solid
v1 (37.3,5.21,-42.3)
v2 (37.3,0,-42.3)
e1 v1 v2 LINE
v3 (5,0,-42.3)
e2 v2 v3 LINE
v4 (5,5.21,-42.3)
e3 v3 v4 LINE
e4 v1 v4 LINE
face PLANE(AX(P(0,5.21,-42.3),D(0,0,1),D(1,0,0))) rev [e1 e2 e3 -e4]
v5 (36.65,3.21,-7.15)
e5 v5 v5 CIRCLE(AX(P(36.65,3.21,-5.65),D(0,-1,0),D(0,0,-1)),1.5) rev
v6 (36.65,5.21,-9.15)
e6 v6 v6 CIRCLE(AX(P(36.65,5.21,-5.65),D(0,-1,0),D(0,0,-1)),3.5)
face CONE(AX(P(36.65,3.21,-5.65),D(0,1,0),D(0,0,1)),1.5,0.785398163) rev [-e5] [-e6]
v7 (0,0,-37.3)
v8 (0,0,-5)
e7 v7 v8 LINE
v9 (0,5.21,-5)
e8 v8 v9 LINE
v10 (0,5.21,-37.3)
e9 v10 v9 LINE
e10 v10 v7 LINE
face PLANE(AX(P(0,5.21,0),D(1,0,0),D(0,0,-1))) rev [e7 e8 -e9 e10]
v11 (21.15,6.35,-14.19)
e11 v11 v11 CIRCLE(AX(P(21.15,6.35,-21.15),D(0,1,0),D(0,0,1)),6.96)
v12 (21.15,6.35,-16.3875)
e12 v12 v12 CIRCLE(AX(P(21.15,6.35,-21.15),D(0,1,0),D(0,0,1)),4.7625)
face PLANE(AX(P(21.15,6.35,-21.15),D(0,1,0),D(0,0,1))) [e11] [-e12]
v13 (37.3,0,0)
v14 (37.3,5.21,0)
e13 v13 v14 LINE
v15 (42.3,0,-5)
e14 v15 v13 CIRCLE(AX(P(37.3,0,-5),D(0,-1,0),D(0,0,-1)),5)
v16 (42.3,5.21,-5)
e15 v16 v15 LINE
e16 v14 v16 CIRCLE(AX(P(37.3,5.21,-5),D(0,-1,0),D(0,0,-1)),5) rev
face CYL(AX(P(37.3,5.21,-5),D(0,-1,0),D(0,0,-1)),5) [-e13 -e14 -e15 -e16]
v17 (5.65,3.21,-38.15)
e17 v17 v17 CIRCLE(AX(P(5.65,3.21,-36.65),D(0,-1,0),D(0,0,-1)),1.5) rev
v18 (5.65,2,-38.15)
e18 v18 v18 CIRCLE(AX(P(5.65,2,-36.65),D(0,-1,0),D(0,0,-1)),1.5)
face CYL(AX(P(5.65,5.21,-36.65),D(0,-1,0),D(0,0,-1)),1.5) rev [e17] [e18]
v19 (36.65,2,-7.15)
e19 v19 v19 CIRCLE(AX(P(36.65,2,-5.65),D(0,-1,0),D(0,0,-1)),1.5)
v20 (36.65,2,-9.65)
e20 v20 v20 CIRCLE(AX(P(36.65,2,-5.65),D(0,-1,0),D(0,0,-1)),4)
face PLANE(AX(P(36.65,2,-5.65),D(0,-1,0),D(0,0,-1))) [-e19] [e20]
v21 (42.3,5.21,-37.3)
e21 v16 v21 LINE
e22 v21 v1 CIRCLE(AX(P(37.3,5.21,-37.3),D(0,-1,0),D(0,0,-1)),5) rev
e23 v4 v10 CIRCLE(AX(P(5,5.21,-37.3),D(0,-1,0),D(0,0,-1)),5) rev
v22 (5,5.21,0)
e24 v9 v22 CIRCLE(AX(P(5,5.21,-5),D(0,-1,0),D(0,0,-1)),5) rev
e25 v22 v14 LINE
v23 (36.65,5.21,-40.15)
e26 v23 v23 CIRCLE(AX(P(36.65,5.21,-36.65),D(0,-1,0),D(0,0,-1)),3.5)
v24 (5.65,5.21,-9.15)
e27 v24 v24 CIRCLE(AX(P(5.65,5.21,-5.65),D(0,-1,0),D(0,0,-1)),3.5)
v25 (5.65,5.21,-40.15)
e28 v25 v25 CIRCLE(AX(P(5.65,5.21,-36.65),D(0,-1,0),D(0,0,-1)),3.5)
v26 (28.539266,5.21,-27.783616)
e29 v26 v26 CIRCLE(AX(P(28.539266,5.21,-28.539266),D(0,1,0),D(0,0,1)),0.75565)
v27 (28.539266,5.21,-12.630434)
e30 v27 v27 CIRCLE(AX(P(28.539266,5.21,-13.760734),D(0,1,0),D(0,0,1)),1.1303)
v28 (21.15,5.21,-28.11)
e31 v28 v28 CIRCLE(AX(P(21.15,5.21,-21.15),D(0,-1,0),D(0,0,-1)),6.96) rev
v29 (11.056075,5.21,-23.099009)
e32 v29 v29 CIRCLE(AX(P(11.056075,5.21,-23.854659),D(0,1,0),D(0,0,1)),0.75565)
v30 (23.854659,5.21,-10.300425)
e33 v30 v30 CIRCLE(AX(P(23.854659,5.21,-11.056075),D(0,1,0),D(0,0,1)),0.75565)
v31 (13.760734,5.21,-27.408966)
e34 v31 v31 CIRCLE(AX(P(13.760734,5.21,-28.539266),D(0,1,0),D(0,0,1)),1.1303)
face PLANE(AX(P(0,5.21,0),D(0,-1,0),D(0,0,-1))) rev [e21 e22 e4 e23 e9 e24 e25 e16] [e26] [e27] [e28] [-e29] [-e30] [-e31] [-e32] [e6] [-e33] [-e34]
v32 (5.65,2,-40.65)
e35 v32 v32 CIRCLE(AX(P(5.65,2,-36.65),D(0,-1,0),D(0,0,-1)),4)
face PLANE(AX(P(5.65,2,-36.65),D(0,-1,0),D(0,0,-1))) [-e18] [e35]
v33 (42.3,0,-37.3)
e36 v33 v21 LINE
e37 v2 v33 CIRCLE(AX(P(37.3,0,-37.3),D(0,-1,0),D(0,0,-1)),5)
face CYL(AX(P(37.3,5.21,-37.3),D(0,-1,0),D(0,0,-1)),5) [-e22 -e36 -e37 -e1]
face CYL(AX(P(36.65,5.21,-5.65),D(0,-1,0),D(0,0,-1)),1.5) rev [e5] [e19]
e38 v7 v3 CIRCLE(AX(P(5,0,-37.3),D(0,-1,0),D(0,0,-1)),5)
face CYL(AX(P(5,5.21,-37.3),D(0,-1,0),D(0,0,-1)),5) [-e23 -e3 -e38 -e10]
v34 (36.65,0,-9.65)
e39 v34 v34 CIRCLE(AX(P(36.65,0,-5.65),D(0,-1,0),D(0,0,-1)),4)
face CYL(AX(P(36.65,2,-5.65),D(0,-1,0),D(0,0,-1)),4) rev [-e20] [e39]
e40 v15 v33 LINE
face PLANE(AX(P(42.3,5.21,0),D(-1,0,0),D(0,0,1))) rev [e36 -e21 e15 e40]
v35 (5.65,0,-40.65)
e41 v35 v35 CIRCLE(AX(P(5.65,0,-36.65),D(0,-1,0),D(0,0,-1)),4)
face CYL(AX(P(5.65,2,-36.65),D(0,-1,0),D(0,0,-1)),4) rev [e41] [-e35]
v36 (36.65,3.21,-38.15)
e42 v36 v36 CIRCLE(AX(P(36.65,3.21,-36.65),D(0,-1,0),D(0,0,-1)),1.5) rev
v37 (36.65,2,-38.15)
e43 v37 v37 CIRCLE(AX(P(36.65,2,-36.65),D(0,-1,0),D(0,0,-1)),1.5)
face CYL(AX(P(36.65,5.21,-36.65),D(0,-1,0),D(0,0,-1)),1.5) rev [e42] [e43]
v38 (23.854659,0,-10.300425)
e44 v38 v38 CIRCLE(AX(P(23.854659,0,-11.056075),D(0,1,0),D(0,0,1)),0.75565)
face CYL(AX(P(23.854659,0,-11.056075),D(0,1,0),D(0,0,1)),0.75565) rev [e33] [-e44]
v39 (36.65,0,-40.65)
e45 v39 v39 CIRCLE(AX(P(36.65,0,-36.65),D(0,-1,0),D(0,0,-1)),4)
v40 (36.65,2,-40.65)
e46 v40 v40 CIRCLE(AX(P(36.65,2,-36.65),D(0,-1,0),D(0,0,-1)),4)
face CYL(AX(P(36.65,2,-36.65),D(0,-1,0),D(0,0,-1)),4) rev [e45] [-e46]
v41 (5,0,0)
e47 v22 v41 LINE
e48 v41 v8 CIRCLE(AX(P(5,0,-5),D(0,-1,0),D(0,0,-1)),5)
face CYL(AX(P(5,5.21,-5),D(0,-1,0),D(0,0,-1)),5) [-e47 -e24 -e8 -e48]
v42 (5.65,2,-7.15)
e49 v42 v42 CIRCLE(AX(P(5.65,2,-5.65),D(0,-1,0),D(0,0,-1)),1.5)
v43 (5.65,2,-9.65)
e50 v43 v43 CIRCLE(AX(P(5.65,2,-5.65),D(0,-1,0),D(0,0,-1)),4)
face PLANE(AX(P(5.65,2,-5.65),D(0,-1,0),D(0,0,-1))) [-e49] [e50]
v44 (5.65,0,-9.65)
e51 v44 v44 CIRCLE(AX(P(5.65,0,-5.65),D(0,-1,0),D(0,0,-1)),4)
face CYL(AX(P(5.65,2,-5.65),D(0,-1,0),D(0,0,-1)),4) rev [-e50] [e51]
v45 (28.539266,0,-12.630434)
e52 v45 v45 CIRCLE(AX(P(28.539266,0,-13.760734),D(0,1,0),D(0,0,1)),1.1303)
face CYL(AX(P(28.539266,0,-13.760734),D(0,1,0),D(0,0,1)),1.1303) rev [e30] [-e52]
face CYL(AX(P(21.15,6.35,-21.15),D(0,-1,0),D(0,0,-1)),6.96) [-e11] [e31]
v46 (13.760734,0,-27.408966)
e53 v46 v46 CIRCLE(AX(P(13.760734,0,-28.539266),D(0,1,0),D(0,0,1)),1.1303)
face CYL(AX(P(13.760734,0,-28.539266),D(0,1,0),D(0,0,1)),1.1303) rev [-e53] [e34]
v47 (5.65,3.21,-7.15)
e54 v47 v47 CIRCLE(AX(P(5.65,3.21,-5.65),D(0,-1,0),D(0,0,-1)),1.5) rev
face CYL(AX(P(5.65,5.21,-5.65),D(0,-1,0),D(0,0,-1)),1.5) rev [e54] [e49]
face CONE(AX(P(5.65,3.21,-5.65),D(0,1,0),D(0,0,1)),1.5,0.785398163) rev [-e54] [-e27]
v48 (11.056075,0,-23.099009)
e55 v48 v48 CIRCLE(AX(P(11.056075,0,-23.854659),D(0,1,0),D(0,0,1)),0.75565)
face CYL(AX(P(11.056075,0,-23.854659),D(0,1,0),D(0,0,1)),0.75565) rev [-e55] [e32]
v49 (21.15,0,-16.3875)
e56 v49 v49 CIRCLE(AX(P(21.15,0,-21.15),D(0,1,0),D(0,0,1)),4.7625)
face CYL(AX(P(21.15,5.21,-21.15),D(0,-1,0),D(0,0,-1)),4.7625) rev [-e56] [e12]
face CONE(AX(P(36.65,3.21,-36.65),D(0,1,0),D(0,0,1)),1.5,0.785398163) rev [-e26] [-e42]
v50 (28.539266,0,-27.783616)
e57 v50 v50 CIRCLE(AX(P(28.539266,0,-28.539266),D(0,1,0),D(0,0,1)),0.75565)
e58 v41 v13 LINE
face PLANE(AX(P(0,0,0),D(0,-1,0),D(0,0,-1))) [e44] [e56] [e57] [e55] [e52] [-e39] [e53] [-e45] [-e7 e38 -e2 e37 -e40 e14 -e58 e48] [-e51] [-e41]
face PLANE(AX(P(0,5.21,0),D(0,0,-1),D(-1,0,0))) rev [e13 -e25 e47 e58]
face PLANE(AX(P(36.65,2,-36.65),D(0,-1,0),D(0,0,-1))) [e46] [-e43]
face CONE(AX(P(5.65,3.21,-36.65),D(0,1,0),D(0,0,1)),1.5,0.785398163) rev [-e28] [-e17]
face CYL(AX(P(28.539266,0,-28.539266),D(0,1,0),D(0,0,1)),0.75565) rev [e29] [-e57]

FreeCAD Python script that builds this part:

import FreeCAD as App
import Part
import Sketcher


def edges_at(feature, points):
    """Names of the edges that pass closest to the given points."""
    edges = feature.Shape.Edges
    near = lambda p: min(range(len(edges)), key=lambda i: edges[i].distToShape(Part.Vertex(*p))[0])
    return sorted({f"Edge{near(p) + 1}" for p in points})


def add_polygon(sketch, points):
    """Adds a closed chain of lines whose ends are joined by coincident constraints."""
    first, n = sketch.GeometryCount, len(points)
    for a, b in zip(points, points[1:] + points[:1]):
        sketch.addGeometry(Part.LineSegment(App.Vector(*a, 0), App.Vector(*b, 0)), False)
    for i in range(n):
        sketch.addConstraint(Sketcher.Constraint("Coincident", first + i, 2, first + (i + 1) % n, 1))

doc = App.newDocument("Part")
body = doc.addObject("PartDesign::Body", "Body")

sketch1 = body.newObject("Sketcher::SketchObject", "Sketch")
sketch1.AttachmentSupport = (doc.getObject("XZ_Plane"), [""])
sketch1.MapMode = "FlatFace"
add_polygon(sketch1, [(0, -42.3), (0, 0), (42.3, 0), (42.3, -42.3)])
sketch1.addGeometry(Part.Circle(App.Vector(5.65, -5.65, 0), App.Vector(0, 0, 1), 1.5), False)
sketch1.addGeometry(Part.Circle(App.Vector(36.65, -5.65, 0), App.Vector(0, 0, 1), 1.5), False)
sketch1.addGeometry(Part.Circle(App.Vector(5.65, -36.65, 0), App.Vector(0, 0, 1), 1.5), False)
sketch1.addGeometry(Part.Circle(App.Vector(21.15, -21.15, 0), App.Vector(0, 0, 1), 4.7625), False)
sketch1.addGeometry(Part.Circle(App.Vector(36.65, -36.65, 0), App.Vector(0, 0, 1), 1.5), False)
sketch1.addConstraint([
    Sketcher.Constraint("Vertical", 0),
    Sketcher.Constraint("Horizontal", 1),
    Sketcher.Constraint("Vertical", 2),
    Sketcher.Constraint("Horizontal", 3),
    Sketcher.Constraint("Coincident", 0, 2, -1, 1),
    Sketcher.Constraint("Equal", 4, 5),
    Sketcher.Constraint("Equal", 5, 6),
    Sketcher.Constraint("Equal", 6, 8),
    Sketcher.Constraint("Horizontal", 4, 3, 5, 3),
    Sketcher.Constraint("Horizontal", 6, 3, 8, 3),
    Sketcher.Constraint("Vertical", 4, 3, 6, 3),
    Sketcher.Constraint("Vertical", 5, 3, 8, 3),
    Sketcher.Constraint("Equal", 3, 0),
    Sketcher.Constraint("Diameter", 4, 3.0),
    Sketcher.Constraint("Diameter", 7, 9.525),
    Sketcher.Constraint("DistanceX", 1, 1, 1, 2, 42.3),
    Sketcher.Constraint("DistanceX", 4, 3, 5, 3, 31.0),
    Sketcher.Constraint("DistanceY", 6, 3, 4, 3, 31.0),
    Sketcher.Constraint("DistanceX", 4, 3, 7, 3, 15.5),
    Sketcher.Constraint("DistanceY", 7, 3, 4, 3, 15.5),
    Sketcher.Constraint("DistanceX", -1, 1, 4, 3, 5.65),
    Sketcher.Constraint("DistanceY", 4, 3, -1, 1, 5.65),
])
pad1 = body.newObject("PartDesign::Pad", "Pad")
pad1.Profile = sketch1
pad1.Length = 5.21
pad1.Reversed = True

sketch2 = body.newObject("Sketcher::SketchObject", "Sketch001")
sketch2.AttachmentSupport = (doc.getObject("XZ_Plane"), [""])
sketch2.MapMode = "FlatFace"
sketch2.AttachmentOffset = App.Placement(App.Vector(0, 0, -5.21), App.Rotation())
sketch2.addGeometry([
    Part.Circle(App.Vector(11.056075, -23.854659, 0), App.Vector(0, 0, 1), 0.75565),
    Part.Circle(App.Vector(28.539266, -28.539266, 0), App.Vector(0, 0, 1), 0.75565),
    Part.Circle(App.Vector(23.854659, -11.056075, 0), App.Vector(0, 0, 1), 0.75565),
    Part.Circle(App.Vector(28.539266, -13.760734, 0), App.Vector(0, 0, 1), 1.1303),
    Part.Circle(App.Vector(13.760734, -28.539266, 0), App.Vector(0, 0, 1), 1.1303),
], False)
sketch2.addConstraint([
    Sketcher.Constraint("Equal", 0, 1),
    Sketcher.Constraint("Equal", 1, 2),
    Sketcher.Constraint("Equal", 3, 4),
    Sketcher.Constraint("Horizontal", 1, 3, 4, 3),
    Sketcher.Constraint("Vertical", 1, 3, 3, 3),
    Sketcher.Constraint("Diameter", 0, 1.5113),
    Sketcher.Constraint("Diameter", 3, 2.2606),
    Sketcher.Constraint("DistanceY", 0, 3, -1, 1, 23.854659),
    Sketcher.Constraint("DistanceX", -1, 1, 2, 3, 23.854659),
    Sketcher.Constraint("DistanceX", 0, 3, 1, 3, 17.483191),
    Sketcher.Constraint("DistanceY", 1, 3, 2, 3, 17.483191),
    Sketcher.Constraint("DistanceY", 3, 3, 2, 3, 2.704659),
    Sketcher.Constraint("DistanceX", 0, 3, 4, 3, 2.704659),
    Sketcher.Constraint("DistanceX", -1, 1, 0, 3, 11.056075),
    Sketcher.Constraint("DistanceY", 1, 3, -1, 1, 28.539266),
])
pocket1 = body.newObject("PartDesign::Pocket", "Pocket")
pocket1.Profile = sketch2
pocket1.Type = "ThroughAll"
pocket1.Reversed = True
doc.recompute()

chamfer = body.newObject("PartDesign::Chamfer", "Chamfer")
chamfer.Base = (pocket1, edges_at(pocket1, [
    (35.15, 5.21, -36.65),
    (4.15, 5.21, -5.65),
    (35.15, 5.21, -5.65),
    (4.15, 5.21, -36.65),
]))
chamfer.Size = 2

sketch3 = body.newObject("Sketcher::SketchObject", "Sketch002")
sketch3.AttachmentSupport = (doc.getObject("XZ_Plane"), [""])
sketch3.MapMode = "FlatFace"
sketch3.AttachmentOffset = App.Placement(App.Vector(0, 0, -5.21), App.Rotation())
sketch3.addGeometry([
    Part.Circle(App.Vector(21.15, -21.15, 0), App.Vector(0, 0, 1), 6.96),
    Part.Circle(App.Vector(21.15, -21.15, 0), App.Vector(0, 0, 1), 4.7625),
], False)
sketch3.addConstraint([
    Sketcher.Constraint("Coincident", 1, 3, 0, 3),
    Sketcher.Constraint("Diameter", 0, 13.92),
    Sketcher.Constraint("Diameter", 1, 9.525),
    Sketcher.Constraint("DistanceX", -1, 1, 0, 3, 21.15),
    Sketcher.Constraint("DistanceY", 0, 3, -1, 1, 21.15),
])
pad2 = body.newObject("PartDesign::Pad", "Pad001")
pad2.Profile = sketch3
pad2.Length = 1.14
pad2.Reversed = True

sketch4 = body.newObject("Sketcher::SketchObject", "Sketch003")
sketch4.AttachmentSupport = (doc.getObject("XZ_Plane"), [""])
sketch4.MapMode = "FlatFace"
sketch4.addGeometry([
    Part.Circle(App.Vector(36.65, -36.65, 0), App.Vector(0, 0, 1), 4),
    Part.Circle(App.Vector(36.65, -36.65, 0), App.Vector(0, 0, 1), 1.5),
    Part.Circle(App.Vector(5.65, -36.65, 0), App.Vector(0, 0, 1), 4),
    Part.Circle(App.Vector(5.65, -36.65, 0), App.Vector(0, 0, 1), 1.5),
    Part.Circle(App.Vector(5.65, -5.65, 0), App.Vector(0, 0, 1), 4),
    Part.Circle(App.Vector(5.65, -5.65, 0), App.Vector(0, 0, 1), 1.5),
    Part.Circle(App.Vector(36.65, -5.65, 0), App.Vector(0, 0, 1), 4),
    Part.Circle(App.Vector(36.65, -5.65, 0), App.Vector(0, 0, 1), 1.5),
], False)
sketch4.addConstraint([
    Sketcher.Constraint("Coincident", 1, 3, 0, 3),
    Sketcher.Constraint("Coincident", 3, 3, 2, 3),
    Sketcher.Constraint("Coincident", 5, 3, 4, 3),
    Sketcher.Constraint("Coincident", 7, 3, 6, 3),
    Sketcher.Constraint("Equal", 0, 2),
    Sketcher.Constraint("Equal", 1, 3),
    Sketcher.Constraint("Equal", 2, 4),
    Sketcher.Constraint("Equal", 3, 5),
    Sketcher.Constraint("Equal", 4, 6),
    Sketcher.Constraint("Equal", 5, 7),
    Sketcher.Constraint("Horizontal", 1, 3, 2, 3),
    Sketcher.Constraint("Horizontal", 5, 3, 6, 3),
    Sketcher.Constraint("Vertical", 3, 3, 4, 3),
    Sketcher.Constraint("Vertical", 1, 3, 6, 3),
    Sketcher.Constraint("Diameter", 0, 8.0),
    Sketcher.Constraint("Diameter", 1, 3.0),
    Sketcher.Constraint("DistanceX", 2, 3, 0, 3, 31.0),
    Sketcher.Constraint("DistanceY", 2, 3, 4, 3, 31.0),
    Sketcher.Constraint("DistanceX", -1, 1, 0, 3, 36.65),
    Sketcher.Constraint("DistanceY", 0, 3, -1, 1, 36.65),
])
pocket2 = body.newObject("PartDesign::Pocket", "Pocket001")
pocket2.Profile = sketch4
pocket2.Length = 2
doc.recompute()

fillet = body.newObject("PartDesign::Fillet", "Fillet")
fillet.Base = (pocket2, edges_at(pocket2, [
    (0, 2.605, -42.3),
    (42.3, 2.605, -42.3),
    (42.3, 2.605, 0),
    (0, 2.605, 0),
]))
fillet.Radius = 5

doc.recompute()
